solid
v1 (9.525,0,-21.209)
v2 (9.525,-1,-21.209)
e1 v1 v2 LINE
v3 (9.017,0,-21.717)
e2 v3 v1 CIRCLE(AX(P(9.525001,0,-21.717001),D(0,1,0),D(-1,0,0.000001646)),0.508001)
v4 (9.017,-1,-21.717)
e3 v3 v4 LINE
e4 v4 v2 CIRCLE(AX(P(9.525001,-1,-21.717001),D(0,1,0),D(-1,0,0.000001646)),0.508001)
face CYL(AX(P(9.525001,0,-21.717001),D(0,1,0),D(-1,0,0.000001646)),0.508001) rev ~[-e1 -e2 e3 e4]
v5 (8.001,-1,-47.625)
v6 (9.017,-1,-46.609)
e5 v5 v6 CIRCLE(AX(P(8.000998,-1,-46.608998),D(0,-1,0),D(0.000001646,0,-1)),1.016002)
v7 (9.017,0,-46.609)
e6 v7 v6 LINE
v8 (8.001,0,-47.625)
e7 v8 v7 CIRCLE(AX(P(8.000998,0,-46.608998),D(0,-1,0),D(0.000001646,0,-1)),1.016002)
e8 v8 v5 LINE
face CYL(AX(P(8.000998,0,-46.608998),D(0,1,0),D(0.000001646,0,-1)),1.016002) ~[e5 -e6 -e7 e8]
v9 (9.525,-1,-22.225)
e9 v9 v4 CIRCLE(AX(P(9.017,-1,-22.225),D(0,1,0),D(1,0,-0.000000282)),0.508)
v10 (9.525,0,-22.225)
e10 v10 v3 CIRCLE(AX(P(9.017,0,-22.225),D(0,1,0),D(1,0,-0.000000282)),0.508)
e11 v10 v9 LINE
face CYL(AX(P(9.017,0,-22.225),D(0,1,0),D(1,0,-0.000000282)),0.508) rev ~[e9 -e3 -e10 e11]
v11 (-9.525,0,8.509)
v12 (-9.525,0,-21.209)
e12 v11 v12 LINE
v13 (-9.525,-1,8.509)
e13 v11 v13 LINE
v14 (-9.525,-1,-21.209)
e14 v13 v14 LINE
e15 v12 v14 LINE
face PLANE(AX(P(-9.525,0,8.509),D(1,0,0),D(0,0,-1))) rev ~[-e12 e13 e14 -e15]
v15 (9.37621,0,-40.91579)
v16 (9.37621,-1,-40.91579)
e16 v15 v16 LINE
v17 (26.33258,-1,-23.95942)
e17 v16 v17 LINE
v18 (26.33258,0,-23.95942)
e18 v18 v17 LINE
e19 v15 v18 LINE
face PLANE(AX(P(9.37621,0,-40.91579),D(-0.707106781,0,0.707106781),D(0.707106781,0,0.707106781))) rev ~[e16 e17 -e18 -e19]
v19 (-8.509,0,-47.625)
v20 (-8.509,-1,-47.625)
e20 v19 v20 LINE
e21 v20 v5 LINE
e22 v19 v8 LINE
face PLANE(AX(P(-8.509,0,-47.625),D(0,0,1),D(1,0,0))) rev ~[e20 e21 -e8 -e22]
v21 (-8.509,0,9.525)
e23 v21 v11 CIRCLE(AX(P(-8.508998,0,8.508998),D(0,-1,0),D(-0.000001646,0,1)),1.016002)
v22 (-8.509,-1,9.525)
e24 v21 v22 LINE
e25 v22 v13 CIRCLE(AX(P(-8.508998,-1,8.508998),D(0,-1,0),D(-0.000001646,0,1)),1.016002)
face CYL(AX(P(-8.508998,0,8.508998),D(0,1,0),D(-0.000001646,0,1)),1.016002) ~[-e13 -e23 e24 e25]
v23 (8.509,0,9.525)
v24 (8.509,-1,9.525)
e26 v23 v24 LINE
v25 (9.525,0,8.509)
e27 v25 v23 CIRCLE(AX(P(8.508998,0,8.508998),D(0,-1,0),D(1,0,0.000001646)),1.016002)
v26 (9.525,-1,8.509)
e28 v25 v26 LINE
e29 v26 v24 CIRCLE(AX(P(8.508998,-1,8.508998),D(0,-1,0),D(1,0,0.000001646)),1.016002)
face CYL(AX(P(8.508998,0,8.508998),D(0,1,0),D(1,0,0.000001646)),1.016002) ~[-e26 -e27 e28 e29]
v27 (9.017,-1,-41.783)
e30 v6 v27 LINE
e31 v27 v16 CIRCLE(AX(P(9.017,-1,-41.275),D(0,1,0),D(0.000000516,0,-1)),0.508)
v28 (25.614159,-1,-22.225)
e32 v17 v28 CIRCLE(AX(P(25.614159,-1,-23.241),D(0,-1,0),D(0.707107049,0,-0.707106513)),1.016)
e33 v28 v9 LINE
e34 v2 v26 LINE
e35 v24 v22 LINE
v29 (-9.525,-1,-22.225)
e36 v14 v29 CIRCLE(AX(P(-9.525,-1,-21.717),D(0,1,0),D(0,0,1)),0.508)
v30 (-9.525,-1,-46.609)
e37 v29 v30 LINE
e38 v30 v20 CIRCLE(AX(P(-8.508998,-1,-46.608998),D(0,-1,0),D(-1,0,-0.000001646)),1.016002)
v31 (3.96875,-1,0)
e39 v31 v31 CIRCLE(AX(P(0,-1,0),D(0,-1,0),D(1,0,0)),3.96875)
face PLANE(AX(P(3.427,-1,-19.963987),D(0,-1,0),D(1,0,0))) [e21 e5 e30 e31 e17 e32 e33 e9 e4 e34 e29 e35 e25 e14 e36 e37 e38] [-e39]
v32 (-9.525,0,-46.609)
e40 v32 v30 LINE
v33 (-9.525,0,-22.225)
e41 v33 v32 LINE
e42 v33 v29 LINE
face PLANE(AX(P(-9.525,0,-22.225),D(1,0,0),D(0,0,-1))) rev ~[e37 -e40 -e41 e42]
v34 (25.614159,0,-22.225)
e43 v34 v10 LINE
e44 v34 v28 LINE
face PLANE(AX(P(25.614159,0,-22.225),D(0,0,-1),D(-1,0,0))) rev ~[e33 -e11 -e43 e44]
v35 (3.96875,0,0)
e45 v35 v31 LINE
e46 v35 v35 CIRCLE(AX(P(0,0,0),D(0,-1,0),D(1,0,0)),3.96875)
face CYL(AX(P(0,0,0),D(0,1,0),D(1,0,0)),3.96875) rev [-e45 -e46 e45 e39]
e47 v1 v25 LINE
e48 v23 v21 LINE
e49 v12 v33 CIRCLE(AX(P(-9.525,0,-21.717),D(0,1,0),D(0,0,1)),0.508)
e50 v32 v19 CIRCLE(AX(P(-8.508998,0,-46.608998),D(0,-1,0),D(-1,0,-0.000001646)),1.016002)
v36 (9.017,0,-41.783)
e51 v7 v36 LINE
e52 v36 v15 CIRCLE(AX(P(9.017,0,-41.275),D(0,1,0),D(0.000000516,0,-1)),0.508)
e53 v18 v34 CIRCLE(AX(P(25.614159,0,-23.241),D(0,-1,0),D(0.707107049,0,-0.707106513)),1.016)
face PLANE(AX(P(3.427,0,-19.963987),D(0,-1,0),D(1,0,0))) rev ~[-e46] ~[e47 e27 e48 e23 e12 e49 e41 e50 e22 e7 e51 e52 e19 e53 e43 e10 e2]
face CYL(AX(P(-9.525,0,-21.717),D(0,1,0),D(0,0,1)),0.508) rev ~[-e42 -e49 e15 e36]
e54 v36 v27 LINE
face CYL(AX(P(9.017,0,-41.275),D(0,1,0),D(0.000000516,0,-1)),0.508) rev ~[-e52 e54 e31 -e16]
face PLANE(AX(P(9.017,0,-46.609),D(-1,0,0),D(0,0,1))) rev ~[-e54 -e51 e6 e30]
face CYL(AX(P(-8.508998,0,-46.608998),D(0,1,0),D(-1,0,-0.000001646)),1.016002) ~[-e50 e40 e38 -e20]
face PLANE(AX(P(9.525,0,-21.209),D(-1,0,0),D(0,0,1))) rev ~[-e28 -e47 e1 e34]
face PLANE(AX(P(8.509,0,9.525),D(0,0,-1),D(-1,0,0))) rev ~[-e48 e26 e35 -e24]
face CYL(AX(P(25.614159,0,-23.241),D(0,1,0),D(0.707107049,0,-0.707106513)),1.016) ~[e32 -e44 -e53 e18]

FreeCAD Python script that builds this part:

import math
import FreeCAD as App
import Part
import Sketcher
from FreeCAD import Vector
Q = App.Units.Quantity

doc = App.newDocument("Part")
body = doc.addObject("PartDesign::Body", "Body")

# Sketch on XZ plane
sketch1 = body.newObject("Sketcher::SketchObject", "Sketch")
sketch1.AttachmentSupport = (doc.getObject("XZ_Plane"), [""])
sketch1.MapMode = "FlatFace"
sketch1.addGeometry([
    Part.LineSegment(Vector(8.509, 9.525, 0), Vector(-8.509, 9.525, 0)),  # 0
    Part.ArcOfCircle(Part.Circle(Vector(-8.508998, 8.508998, 0), Vector(0, 0, 1), 1.016002), math.radians(90.000094), math.radians(179.999906)),  # 1
    Part.LineSegment(Vector(-9.525, 8.509, 0), Vector(-9.525, -21.209, 0)),  # 2
    Part.ArcOfCircle(Part.Circle(Vector(-9.525, -21.717, 0), Vector(0, 0, 1), 0.508), math.radians(-90), math.radians(90)),  # 3
    Part.LineSegment(Vector(-9.525, -22.225, 0), Vector(-9.525, -46.609, 0)),  # 4
    Part.ArcOfCircle(Part.Circle(Vector(-8.508998, -46.608998, 0), Vector(0, 0, 1), 1.016002), math.radians(-179.999906), math.radians(-90.000094)),  # 5
    Part.LineSegment(Vector(-8.509, -47.625, 0), Vector(8.001, -47.625, 0)),  # 6
    Part.ArcOfCircle(Part.Circle(Vector(8.000998, -46.608998, 0), Vector(0, 0, 1), 1.016002), math.radians(-89.999906), math.radians(-0.000094)),  # 7
    Part.LineSegment(Vector(9.017, -46.609, 0), Vector(9.017, -41.783, 0)),  # 8
    Part.ArcOfCircle(Part.Circle(Vector(9.017, -41.275, 0), Vector(0, 0, 1), 0.508), math.radians(44.999987), math.radians(270.00003)),  # 9
    Part.LineSegment(Vector(9.37621, -40.91579, 0), Vector(26.33258, -23.95942, 0)),  # 10
    Part.ArcOfCircle(Part.Circle(Vector(25.614159, -23.241, 0), Vector(0, 0, 1), 1.016), math.radians(-44.999978), math.radians(90.000018)),  # 11
    Part.LineSegment(Vector(25.614159, -22.225, 0), Vector(9.525, -22.225, 0)),  # 12
    Part.ArcOfCircle(Part.Circle(Vector(9.017, -22.225, 0), Vector(0, 0, 1), 0.508), math.radians(90.000016), math.radians(359.999984)),  # 13
    Part.ArcOfCircle(Part.Circle(Vector(9.525001, -21.717001, 0), Vector(0, 0, 1), 0.508001), math.radians(90.000094), math.radians(179.999906)),  # 14
    Part.LineSegment(Vector(9.525, -21.209, 0), Vector(9.525, 8.509, 0)),  # 15
    Part.ArcOfCircle(Part.Circle(Vector(8.508998, 8.508998, 0), Vector(0, 0, 1), 1.016002), math.radians(0.000094), math.radians(89.999906)),  # 16
    Part.Circle(Vector(0, 0, 0), Vector(0, 0, 1), 3.96875),  # 17
], False)
sketch1.addConstraint([
    Sketcher.Constraint("Tangent", 0, 2, 1, 1),
    Sketcher.Constraint("Tangent", 1, 2, 2, 1),
    Sketcher.Constraint("Coincident", 2, 2, 3, 2),
    Sketcher.Constraint("Coincident", 3, 1, 4, 1),
    Sketcher.Constraint("Tangent", 4, 2, 5, 1),
    Sketcher.Constraint("Tangent", 5, 2, 6, 1),
    Sketcher.Constraint("Tangent", 6, 2, 7, 1),
    Sketcher.Constraint("Tangent", 7, 2, 8, 1),
    Sketcher.Constraint("Coincident", 8, 2, 9, 2),
    Sketcher.Constraint("Coincident", 9, 1, 10, 1),
    Sketcher.Constraint("Tangent", 10, 2, 11, 1),
    Sketcher.Constraint("Tangent", 11, 2, 12, 1),
    Sketcher.Constraint("Coincident", 12, 2, 13, 2),
    Sketcher.Constraint("Coincident", 13, 1, 14, 2),
    Sketcher.Constraint("Coincident", 14, 1, 15, 1),
    Sketcher.Constraint("Tangent", 15, 2, 16, 1),
    Sketcher.Constraint("Tangent", 16, 2, 0, 1),
    Sketcher.Constraint("Horizontal", 0),
    Sketcher.Constraint("Vertical", 2),
    Sketcher.Constraint("Vertical", 4),
    Sketcher.Constraint("Horizontal", 6),
    Sketcher.Constraint("Vertical", 8),
    Sketcher.Constraint("Horizontal", 12),
    Sketcher.Constraint("Vertical", 15),
    Sketcher.Constraint("Coincident", 17, 3, -1, 1),
    Sketcher.Constraint("Equal", 1, 5),
    Sketcher.Constraint("Equal", 5, 7),
    Sketcher.Constraint("Equal", 3, 9),
    Sketcher.Constraint("Equal", 7, 11),
    Sketcher.Constraint("Equal", 9, 13),
    Sketcher.Constraint("Equal", 13, 14),
    Sketcher.Constraint("Equal", 11, 16),
    Sketcher.Constraint("Symmetric", 3, 3, 14, 3, -2),
    Sketcher.Constraint("Symmetric", 3, 1, 12, 2, -2),
    Sketcher.Constraint("Horizontal", 13, 3, 3, 1),
    Sketcher.Constraint("Vertical", 1, 3, 5, 3),
    Sketcher.Constraint("Vertical", 9, 3, 13, 3),
    Sketcher.Constraint("Vertical", 3, 3, 1, 2),
    Sketcher.Constraint("Vertical", 13, 3, 7, 2),
    Sketcher.Constraint("Vertical", 12, 2, 14, 1),
    Sketcher.Constraint("Radius", 1, Q("0.0400001 in")),
    Sketcher.Constraint("Radius", 3, Q("0.02 in")),
    Sketcher.Constraint("Diameter", 17, Q("0.3125 in")),
    Sketcher.Constraint("Angle", 10, Q("45 deg")),
    Sketcher.Constraint("DistanceY", 5, 3, 2, 2, Q("0.9999999 in")),
    Sketcher.Constraint("DistanceX", 0, 2, 0, 1, Q("0.67 in")),
    Sketcher.Constraint("DistanceY", 2, 2, 2, 1, Q("1.17 in")),
    Sketcher.Constraint("DistanceY", 8, 1, 8, 2, Q("0.19 in")),
    Sketcher.Constraint("DistanceY", -1, 1, 1, 3, Q("0.3349999 in")),
    Sketcher.Constraint("DistanceX", 12, 2, 12, 1, Q("16.089159 mm")),
])
pad1 = body.newObject("PartDesign::Pad", "Pad")
pad1.Profile = sketch1
pad1.Length = 1

doc.recompute()
